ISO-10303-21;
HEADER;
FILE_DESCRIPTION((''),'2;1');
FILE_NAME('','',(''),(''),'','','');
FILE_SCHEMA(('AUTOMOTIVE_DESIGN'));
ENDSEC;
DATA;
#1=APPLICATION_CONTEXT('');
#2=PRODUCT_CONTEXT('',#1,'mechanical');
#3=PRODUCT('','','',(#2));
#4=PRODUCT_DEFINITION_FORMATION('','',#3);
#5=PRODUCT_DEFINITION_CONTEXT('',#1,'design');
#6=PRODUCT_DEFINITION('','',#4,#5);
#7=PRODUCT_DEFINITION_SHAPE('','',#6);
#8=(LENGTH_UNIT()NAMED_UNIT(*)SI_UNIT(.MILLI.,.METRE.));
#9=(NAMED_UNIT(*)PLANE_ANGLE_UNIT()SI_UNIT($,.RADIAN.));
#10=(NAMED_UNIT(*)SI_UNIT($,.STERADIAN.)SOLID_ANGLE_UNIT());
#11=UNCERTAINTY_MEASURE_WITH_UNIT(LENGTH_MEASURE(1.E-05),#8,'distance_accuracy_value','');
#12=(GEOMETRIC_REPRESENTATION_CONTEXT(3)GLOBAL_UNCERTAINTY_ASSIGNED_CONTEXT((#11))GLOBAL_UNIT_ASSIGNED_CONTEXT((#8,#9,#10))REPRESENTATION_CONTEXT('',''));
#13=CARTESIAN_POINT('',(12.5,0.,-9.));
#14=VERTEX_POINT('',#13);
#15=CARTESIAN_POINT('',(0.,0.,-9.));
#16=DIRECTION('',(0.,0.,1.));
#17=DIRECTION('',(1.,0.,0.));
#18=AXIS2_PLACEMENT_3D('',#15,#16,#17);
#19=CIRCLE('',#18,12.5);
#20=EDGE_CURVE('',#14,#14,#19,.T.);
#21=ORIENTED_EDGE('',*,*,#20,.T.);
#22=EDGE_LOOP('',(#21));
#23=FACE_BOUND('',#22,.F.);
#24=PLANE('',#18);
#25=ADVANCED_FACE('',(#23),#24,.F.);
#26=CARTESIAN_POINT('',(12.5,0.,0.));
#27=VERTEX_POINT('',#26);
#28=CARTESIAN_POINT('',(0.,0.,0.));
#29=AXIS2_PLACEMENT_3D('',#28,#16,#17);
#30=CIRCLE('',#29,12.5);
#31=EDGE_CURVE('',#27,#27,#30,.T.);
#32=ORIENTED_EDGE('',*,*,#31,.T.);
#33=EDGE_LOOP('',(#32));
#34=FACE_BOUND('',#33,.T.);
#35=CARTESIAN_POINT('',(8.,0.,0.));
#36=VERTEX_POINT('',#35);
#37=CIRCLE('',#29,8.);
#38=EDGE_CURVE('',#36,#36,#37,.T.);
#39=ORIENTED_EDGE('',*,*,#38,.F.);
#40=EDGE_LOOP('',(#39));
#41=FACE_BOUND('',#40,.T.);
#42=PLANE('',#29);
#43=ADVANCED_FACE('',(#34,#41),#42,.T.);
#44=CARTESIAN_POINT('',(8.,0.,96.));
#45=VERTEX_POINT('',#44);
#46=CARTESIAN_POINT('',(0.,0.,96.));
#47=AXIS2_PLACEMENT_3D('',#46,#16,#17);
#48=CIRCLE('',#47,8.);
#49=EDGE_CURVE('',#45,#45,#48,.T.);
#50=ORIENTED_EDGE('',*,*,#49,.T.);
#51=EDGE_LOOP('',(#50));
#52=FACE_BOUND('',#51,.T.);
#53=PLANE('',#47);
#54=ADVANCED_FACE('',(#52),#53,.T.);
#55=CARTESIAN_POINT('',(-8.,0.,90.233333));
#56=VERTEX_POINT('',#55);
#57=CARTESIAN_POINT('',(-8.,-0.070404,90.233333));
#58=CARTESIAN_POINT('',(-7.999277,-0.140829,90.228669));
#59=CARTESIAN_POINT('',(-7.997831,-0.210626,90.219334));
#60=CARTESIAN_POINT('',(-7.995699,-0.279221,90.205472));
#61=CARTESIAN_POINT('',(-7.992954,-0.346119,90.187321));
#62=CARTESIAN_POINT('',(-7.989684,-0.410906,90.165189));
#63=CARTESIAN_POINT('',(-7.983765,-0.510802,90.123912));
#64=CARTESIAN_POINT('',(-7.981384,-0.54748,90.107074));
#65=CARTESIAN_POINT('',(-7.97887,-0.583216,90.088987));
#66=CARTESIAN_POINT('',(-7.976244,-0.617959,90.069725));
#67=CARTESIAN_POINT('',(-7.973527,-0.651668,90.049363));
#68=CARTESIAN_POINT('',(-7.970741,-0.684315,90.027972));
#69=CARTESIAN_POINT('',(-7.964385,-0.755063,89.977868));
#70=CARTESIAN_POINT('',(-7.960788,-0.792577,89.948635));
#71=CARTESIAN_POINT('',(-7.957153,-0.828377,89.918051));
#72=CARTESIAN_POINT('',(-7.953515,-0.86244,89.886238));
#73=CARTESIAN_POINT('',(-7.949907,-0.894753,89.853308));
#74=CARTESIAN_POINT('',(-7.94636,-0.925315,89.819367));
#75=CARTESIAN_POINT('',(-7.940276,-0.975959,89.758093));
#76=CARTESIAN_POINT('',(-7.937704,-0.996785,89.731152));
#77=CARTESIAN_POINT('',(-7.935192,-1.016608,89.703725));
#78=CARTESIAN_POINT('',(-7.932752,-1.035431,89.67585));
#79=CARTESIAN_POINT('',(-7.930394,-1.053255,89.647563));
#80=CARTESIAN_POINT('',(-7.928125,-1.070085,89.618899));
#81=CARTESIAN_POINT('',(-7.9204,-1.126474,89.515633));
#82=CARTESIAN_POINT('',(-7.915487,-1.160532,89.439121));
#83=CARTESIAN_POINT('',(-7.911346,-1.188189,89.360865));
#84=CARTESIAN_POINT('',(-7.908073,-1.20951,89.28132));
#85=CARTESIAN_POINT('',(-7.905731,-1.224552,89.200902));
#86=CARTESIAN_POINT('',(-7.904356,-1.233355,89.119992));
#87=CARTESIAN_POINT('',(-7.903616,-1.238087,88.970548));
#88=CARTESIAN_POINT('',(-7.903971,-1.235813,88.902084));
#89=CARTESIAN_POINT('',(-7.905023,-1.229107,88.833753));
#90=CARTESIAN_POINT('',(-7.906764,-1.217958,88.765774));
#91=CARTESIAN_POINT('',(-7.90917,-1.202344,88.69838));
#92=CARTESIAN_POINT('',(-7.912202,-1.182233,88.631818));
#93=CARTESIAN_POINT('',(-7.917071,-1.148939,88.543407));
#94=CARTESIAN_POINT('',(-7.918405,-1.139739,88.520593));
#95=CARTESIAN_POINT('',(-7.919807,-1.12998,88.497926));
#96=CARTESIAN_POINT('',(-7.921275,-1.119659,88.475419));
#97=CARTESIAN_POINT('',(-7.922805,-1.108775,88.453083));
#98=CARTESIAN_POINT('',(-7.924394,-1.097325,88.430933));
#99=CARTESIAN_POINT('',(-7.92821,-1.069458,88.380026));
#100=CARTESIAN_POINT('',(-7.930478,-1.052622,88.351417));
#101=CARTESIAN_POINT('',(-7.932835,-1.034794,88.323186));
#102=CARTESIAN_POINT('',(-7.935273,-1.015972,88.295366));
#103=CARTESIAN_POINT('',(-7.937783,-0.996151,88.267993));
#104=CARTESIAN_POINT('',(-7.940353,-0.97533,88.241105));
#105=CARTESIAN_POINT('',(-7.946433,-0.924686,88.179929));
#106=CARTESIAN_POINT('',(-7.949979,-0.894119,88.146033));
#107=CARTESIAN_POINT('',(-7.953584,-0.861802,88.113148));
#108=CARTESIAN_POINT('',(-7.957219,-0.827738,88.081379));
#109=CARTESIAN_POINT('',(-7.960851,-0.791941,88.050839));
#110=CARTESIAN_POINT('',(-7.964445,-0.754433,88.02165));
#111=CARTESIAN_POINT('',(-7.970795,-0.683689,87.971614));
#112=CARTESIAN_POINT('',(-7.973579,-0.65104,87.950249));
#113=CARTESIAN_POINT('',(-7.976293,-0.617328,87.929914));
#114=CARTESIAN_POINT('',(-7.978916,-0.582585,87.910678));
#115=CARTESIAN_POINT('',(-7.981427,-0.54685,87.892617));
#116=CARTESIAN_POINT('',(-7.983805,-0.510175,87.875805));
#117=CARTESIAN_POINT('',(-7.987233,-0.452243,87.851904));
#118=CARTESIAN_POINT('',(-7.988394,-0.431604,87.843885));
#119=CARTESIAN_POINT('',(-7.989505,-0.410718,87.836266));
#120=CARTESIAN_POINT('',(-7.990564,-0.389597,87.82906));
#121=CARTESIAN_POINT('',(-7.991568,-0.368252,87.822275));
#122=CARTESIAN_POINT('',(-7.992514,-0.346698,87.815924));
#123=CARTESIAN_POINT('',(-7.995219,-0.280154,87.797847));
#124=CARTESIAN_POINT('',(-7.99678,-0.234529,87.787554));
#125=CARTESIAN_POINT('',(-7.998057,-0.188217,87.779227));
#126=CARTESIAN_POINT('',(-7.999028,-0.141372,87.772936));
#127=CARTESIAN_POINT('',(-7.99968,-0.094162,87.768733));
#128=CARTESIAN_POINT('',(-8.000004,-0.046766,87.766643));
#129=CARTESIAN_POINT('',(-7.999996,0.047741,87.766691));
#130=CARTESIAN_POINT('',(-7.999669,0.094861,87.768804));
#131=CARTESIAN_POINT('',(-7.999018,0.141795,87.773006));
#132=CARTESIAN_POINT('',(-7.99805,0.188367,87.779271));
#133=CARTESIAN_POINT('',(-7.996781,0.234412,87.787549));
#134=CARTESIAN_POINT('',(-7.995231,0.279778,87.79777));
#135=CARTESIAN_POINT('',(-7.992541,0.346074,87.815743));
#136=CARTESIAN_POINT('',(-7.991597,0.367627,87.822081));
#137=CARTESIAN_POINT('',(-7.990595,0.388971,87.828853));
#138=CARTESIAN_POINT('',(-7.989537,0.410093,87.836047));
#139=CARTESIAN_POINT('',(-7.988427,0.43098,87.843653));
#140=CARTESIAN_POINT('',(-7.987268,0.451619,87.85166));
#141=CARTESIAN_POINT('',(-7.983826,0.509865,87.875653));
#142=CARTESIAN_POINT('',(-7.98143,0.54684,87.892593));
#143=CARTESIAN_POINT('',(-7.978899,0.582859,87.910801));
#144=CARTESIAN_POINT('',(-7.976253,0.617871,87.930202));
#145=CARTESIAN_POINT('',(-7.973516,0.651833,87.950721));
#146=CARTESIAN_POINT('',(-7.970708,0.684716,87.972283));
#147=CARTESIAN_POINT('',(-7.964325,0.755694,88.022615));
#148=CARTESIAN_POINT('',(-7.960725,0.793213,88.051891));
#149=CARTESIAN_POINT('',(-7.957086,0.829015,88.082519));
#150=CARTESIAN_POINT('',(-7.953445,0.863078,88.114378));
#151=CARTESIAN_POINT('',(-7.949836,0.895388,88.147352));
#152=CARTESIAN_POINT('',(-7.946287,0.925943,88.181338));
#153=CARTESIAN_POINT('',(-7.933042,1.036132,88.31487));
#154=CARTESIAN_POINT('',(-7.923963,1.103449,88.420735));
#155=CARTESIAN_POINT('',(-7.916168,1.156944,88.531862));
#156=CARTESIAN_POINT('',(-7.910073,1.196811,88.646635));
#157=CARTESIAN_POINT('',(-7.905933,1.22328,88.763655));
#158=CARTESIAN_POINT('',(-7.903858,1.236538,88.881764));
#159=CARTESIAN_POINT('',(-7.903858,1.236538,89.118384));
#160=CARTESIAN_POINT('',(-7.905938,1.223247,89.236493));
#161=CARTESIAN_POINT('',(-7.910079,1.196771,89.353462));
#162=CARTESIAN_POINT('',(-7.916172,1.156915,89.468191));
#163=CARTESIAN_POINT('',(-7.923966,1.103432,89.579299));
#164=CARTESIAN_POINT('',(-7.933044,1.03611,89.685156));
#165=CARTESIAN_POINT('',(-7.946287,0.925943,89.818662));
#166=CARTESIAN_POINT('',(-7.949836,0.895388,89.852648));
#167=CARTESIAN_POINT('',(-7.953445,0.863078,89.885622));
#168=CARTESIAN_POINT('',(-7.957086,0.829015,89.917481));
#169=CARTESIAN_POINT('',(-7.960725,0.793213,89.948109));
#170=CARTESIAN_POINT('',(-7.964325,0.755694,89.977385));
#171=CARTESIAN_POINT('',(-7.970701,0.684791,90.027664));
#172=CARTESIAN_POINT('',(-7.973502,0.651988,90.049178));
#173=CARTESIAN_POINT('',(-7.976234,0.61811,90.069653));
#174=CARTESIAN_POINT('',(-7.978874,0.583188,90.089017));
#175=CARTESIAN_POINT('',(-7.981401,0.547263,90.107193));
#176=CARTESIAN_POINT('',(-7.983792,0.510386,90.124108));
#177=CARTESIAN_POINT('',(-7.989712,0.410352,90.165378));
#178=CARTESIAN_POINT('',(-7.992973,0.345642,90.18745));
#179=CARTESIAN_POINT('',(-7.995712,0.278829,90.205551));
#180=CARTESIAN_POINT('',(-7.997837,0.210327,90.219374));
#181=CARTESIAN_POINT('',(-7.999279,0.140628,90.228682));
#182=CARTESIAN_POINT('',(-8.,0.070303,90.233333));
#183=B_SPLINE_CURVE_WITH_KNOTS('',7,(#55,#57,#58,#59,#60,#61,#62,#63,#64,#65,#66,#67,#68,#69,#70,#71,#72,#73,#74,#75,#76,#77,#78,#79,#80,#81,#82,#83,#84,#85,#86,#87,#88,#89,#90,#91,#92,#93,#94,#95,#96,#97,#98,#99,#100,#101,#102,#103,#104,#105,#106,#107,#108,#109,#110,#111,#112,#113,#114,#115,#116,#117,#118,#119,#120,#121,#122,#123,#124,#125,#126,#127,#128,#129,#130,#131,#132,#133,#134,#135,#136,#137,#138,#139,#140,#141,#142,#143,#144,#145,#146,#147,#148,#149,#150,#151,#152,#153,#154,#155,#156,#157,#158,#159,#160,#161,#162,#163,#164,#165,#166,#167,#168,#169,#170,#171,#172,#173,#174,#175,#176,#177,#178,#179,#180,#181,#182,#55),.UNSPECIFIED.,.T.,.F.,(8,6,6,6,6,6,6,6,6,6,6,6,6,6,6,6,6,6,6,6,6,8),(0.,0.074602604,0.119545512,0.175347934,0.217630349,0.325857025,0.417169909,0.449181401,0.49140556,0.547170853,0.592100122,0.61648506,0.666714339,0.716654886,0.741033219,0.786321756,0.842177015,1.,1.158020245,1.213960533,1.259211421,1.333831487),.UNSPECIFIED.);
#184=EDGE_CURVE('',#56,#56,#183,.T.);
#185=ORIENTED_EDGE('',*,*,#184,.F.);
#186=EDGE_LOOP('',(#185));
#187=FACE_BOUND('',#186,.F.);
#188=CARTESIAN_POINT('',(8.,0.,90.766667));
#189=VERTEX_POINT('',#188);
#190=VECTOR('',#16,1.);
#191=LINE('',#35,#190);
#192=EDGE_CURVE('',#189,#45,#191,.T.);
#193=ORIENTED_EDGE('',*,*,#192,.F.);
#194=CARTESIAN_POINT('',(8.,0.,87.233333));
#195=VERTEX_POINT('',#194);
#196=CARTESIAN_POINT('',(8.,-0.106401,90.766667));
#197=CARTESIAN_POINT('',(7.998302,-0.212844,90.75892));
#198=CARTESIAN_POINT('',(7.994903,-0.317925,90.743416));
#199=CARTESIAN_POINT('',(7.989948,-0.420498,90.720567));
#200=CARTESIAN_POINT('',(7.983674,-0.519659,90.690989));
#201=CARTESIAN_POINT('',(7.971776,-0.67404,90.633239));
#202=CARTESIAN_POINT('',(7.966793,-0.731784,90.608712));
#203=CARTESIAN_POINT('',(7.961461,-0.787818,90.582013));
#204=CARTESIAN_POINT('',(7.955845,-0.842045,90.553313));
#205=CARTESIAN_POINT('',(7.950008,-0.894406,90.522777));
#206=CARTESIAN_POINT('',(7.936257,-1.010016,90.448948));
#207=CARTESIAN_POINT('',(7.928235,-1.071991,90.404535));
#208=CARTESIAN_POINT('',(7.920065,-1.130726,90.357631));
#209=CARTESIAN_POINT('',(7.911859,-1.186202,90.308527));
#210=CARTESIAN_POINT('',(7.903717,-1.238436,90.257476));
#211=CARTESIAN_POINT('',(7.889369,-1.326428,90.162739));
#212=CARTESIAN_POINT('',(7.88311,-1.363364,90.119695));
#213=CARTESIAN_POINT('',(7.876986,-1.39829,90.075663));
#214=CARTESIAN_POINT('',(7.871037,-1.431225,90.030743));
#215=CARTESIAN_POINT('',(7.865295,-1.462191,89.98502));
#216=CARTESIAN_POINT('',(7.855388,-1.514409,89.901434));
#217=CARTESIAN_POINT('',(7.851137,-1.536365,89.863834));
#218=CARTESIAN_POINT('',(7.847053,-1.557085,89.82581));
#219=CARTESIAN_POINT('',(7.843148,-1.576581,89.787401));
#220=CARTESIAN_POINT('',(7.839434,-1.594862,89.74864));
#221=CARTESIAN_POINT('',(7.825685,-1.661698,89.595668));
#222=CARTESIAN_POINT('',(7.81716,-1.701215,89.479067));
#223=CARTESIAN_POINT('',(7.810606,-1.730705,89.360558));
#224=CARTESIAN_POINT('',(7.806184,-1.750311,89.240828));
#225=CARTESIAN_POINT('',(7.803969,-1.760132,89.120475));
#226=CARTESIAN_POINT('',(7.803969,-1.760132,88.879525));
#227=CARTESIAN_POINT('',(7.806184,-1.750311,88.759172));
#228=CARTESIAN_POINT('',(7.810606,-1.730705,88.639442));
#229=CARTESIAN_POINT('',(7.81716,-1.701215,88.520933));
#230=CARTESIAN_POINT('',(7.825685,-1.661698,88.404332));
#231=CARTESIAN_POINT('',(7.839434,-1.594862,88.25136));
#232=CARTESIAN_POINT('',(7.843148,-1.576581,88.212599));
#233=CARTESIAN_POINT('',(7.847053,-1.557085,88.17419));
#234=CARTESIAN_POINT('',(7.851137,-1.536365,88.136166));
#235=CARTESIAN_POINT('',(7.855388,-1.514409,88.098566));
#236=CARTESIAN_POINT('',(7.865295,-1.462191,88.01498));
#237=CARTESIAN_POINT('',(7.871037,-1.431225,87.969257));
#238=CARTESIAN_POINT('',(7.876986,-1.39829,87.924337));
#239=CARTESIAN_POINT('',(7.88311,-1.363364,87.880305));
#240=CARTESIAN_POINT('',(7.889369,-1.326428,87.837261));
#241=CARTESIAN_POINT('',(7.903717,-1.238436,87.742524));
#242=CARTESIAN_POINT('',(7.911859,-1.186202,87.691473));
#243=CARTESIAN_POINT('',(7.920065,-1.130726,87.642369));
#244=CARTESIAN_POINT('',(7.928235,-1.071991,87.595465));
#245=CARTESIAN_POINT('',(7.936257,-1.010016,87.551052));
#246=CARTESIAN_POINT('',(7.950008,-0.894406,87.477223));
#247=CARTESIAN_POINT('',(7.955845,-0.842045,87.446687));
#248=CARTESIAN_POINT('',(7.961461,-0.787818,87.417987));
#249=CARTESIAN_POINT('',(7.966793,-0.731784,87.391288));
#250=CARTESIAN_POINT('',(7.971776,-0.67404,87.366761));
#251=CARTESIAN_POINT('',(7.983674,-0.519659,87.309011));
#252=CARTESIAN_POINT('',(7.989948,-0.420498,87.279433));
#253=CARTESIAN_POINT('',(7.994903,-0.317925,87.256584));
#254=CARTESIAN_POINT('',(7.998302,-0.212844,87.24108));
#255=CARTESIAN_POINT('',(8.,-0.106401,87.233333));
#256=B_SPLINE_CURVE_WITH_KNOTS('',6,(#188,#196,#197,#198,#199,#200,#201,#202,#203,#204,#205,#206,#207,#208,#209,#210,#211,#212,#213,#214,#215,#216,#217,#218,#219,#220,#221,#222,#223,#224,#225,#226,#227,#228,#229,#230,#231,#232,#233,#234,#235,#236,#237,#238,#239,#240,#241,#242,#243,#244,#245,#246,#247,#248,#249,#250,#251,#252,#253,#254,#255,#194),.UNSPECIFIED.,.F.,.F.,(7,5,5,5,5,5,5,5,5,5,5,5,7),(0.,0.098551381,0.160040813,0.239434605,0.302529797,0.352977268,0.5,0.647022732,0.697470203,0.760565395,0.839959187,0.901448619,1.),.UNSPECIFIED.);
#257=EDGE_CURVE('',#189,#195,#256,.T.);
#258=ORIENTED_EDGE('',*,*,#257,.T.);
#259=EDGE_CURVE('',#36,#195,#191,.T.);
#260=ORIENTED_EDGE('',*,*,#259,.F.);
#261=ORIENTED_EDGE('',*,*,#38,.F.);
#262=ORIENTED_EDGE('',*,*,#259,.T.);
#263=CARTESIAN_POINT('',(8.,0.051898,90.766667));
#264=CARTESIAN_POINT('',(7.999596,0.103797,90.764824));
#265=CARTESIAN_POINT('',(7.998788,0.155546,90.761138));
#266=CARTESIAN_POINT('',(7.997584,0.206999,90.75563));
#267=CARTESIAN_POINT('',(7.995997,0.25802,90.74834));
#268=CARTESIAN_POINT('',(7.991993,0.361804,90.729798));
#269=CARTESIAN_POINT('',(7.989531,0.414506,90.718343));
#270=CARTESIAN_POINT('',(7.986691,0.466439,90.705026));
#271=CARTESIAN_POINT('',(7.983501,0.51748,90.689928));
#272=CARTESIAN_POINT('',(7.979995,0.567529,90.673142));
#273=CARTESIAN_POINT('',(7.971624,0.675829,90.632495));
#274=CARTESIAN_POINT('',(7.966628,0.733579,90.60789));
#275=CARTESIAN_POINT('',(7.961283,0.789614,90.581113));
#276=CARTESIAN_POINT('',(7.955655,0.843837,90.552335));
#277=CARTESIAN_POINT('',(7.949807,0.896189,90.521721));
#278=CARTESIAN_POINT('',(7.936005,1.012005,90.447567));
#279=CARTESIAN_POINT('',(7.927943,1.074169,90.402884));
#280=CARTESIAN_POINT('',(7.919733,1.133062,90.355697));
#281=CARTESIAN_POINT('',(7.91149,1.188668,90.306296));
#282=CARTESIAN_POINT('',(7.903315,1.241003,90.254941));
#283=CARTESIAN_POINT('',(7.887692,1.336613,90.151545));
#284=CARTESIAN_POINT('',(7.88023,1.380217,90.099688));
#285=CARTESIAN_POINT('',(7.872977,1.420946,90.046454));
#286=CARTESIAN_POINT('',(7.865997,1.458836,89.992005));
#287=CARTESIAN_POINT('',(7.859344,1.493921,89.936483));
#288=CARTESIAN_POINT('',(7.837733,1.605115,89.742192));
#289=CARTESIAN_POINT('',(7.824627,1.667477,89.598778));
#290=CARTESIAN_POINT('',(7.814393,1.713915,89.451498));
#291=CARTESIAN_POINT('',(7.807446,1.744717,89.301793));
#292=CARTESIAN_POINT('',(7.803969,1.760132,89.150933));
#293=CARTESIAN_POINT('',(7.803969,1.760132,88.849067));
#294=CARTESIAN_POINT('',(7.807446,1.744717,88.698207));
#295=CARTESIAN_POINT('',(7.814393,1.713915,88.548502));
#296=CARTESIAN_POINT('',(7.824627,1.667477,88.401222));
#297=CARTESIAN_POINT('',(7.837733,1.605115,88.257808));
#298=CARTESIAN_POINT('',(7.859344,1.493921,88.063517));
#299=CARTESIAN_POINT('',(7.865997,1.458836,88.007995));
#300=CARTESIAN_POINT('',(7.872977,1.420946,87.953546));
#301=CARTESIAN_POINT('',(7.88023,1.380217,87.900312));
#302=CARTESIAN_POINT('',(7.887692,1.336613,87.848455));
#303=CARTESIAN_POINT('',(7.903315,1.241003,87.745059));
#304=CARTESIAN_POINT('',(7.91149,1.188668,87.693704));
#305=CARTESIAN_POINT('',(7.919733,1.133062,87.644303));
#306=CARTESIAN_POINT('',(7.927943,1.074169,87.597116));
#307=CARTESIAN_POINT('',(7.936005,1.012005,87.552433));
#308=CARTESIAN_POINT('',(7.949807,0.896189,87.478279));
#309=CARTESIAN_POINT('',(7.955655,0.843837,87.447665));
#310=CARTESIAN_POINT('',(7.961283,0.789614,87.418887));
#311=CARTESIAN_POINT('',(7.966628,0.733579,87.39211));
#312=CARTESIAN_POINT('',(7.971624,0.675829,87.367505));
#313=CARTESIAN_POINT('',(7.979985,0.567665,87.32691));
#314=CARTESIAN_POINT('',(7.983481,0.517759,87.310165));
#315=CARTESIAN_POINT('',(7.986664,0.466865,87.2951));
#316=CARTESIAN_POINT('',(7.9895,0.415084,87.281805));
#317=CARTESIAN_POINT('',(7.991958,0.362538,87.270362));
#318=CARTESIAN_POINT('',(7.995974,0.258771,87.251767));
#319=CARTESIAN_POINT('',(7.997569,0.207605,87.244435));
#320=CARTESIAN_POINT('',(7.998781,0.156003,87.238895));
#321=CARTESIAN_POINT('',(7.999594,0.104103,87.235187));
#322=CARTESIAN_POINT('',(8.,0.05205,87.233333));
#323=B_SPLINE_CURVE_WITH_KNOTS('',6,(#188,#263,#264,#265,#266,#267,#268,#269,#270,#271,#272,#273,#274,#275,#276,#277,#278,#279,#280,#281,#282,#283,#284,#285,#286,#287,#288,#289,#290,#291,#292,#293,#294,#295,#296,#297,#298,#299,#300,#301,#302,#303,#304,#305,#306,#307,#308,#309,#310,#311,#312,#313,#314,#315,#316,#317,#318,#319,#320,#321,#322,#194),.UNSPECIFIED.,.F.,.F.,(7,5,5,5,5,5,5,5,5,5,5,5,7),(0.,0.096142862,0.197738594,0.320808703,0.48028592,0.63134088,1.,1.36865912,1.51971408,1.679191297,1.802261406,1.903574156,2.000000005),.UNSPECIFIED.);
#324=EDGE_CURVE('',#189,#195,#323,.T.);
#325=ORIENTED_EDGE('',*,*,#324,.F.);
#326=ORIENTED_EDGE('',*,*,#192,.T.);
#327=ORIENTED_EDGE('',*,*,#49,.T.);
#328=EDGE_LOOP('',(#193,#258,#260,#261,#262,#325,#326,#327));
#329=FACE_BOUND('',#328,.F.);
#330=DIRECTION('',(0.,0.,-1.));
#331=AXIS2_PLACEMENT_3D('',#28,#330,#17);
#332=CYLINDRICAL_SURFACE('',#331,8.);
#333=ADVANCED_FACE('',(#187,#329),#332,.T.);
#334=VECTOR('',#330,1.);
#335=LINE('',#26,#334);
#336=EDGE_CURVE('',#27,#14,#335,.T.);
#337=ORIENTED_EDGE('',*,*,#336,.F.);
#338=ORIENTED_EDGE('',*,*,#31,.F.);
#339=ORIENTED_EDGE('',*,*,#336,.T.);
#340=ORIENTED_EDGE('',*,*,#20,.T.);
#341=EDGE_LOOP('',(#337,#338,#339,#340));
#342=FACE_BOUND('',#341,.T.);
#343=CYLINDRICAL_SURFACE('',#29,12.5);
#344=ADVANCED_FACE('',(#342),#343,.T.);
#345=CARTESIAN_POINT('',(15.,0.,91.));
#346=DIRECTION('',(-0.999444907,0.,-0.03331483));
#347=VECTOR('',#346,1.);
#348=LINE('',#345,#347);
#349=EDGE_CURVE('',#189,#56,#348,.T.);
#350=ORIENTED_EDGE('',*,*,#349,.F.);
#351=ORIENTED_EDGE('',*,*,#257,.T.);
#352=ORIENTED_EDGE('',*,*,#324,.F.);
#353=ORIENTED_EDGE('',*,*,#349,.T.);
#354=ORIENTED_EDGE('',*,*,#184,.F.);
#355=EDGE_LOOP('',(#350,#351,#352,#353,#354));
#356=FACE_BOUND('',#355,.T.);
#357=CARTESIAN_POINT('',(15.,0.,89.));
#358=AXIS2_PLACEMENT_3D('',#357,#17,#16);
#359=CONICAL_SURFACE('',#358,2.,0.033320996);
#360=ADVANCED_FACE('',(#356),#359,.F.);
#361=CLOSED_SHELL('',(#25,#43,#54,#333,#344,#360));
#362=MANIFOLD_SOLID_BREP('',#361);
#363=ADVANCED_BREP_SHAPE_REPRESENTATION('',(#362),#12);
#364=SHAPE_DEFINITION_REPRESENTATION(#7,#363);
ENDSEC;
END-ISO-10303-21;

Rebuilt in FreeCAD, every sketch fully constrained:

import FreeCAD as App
import Part
import Sketcher

V = App.Vector

doc = App.newDocument("Part")
body = doc.addObject("PartDesign::Body", "Body")

sketch1 = body.newObject("Sketcher::SketchObject", "Sketch")
sketch1.AttachmentSupport = (doc.getObject("XY_Plane"), [""])
sketch1.MapMode = "FlatFace"
sketch1.addGeometry(Part.Circle(V(0, 0, 0), V(0, 0, 1), 12.5), False)
sketch1.addConstraint([
    Sketcher.Constraint("Coincident", 0, 3, -1, 1),
    Sketcher.Constraint("Diameter", 0, 25.0),
])
pad1 = body.newObject("PartDesign::Pad", "Pad")
pad1.Profile = sketch1
pad1.Length = 9
pad1.Reversed = True

sketch2 = body.newObject("Sketcher::SketchObject", "Sketch001")
sketch2.AttachmentSupport = (doc.getObject("XY_Plane"), [""])
sketch2.MapMode = "FlatFace"
sketch2.addGeometry(Part.Circle(V(0, 0, 0), V(0, 0, 1), 8), False)
sketch2.addConstraint([
    Sketcher.Constraint("Coincident", 0, 3, -1, 1),
    Sketcher.Constraint("Diameter", 0, 16.0),
])
pad2 = body.newObject("PartDesign::Pad", "Pad001")
pad2.Profile = sketch2
pad2.Length = 96

sketch3 = body.newObject("Sketcher::SketchObject", "Sketch002")
sketch3.AttachmentSupport = (doc.getObject("XZ_Plane"), [""])
sketch3.MapMode = "FlatFace"
sketch3.addGeometry([
    Part.LineSegment(V(-15, 89, 0), V(15, 89, 0)),
    Part.LineSegment(V(15, 89, 0), V(15, 91, 0)),
    Part.LineSegment(V(15, 91, 0), V(-15, 90, 0)),
    Part.LineSegment(V(-15, 90, 0), V(-15, 89, 0)),
], False)
sketch3.addGeometry(Part.LineSegment(V(-15, 89, 0), V(15, 89, 0)), True)
sketch3.addConstraint([
    Sketcher.Constraint("Coincident", 0, 2, 1, 1),
    Sketcher.Constraint("Coincident", 1, 2, 2, 1),
    Sketcher.Constraint("Coincident", 2, 2, 3, 1),
    Sketcher.Constraint("Coincident", 3, 2, 0, 1),
    Sketcher.Constraint("Horizontal", 0),
    Sketcher.Constraint("Vertical", 1),
    Sketcher.Constraint("Vertical", 3),
    Sketcher.Constraint("Horizontal", 4),
    Sketcher.Constraint("Coincident", 4, 1, 3, 2),
    Sketcher.Constraint("Vertical", 1, 2, 4, 2),
    Sketcher.Constraint("DistanceX", 0, 1, 0, 2, 30.0),
    Sketcher.Constraint("DistanceY", 1, 1, 1, 2, 2.0),
    Sketcher.Constraint("DistanceY", 3, 2, 3, 1, 1.0),
    Sketcher.Constraint("DistanceX", -1, 1, 0, 2, 15.0),
    Sketcher.Constraint("DistanceY", -1, 1, 0, 2, 89.0),
])
groove = body.newObject("PartDesign::Groove", "Groove")
groove.Profile = sketch3
groove.ReferenceAxis = (sketch3, ["Axis0"])
groove.Angle = 360

doc.recompute()
